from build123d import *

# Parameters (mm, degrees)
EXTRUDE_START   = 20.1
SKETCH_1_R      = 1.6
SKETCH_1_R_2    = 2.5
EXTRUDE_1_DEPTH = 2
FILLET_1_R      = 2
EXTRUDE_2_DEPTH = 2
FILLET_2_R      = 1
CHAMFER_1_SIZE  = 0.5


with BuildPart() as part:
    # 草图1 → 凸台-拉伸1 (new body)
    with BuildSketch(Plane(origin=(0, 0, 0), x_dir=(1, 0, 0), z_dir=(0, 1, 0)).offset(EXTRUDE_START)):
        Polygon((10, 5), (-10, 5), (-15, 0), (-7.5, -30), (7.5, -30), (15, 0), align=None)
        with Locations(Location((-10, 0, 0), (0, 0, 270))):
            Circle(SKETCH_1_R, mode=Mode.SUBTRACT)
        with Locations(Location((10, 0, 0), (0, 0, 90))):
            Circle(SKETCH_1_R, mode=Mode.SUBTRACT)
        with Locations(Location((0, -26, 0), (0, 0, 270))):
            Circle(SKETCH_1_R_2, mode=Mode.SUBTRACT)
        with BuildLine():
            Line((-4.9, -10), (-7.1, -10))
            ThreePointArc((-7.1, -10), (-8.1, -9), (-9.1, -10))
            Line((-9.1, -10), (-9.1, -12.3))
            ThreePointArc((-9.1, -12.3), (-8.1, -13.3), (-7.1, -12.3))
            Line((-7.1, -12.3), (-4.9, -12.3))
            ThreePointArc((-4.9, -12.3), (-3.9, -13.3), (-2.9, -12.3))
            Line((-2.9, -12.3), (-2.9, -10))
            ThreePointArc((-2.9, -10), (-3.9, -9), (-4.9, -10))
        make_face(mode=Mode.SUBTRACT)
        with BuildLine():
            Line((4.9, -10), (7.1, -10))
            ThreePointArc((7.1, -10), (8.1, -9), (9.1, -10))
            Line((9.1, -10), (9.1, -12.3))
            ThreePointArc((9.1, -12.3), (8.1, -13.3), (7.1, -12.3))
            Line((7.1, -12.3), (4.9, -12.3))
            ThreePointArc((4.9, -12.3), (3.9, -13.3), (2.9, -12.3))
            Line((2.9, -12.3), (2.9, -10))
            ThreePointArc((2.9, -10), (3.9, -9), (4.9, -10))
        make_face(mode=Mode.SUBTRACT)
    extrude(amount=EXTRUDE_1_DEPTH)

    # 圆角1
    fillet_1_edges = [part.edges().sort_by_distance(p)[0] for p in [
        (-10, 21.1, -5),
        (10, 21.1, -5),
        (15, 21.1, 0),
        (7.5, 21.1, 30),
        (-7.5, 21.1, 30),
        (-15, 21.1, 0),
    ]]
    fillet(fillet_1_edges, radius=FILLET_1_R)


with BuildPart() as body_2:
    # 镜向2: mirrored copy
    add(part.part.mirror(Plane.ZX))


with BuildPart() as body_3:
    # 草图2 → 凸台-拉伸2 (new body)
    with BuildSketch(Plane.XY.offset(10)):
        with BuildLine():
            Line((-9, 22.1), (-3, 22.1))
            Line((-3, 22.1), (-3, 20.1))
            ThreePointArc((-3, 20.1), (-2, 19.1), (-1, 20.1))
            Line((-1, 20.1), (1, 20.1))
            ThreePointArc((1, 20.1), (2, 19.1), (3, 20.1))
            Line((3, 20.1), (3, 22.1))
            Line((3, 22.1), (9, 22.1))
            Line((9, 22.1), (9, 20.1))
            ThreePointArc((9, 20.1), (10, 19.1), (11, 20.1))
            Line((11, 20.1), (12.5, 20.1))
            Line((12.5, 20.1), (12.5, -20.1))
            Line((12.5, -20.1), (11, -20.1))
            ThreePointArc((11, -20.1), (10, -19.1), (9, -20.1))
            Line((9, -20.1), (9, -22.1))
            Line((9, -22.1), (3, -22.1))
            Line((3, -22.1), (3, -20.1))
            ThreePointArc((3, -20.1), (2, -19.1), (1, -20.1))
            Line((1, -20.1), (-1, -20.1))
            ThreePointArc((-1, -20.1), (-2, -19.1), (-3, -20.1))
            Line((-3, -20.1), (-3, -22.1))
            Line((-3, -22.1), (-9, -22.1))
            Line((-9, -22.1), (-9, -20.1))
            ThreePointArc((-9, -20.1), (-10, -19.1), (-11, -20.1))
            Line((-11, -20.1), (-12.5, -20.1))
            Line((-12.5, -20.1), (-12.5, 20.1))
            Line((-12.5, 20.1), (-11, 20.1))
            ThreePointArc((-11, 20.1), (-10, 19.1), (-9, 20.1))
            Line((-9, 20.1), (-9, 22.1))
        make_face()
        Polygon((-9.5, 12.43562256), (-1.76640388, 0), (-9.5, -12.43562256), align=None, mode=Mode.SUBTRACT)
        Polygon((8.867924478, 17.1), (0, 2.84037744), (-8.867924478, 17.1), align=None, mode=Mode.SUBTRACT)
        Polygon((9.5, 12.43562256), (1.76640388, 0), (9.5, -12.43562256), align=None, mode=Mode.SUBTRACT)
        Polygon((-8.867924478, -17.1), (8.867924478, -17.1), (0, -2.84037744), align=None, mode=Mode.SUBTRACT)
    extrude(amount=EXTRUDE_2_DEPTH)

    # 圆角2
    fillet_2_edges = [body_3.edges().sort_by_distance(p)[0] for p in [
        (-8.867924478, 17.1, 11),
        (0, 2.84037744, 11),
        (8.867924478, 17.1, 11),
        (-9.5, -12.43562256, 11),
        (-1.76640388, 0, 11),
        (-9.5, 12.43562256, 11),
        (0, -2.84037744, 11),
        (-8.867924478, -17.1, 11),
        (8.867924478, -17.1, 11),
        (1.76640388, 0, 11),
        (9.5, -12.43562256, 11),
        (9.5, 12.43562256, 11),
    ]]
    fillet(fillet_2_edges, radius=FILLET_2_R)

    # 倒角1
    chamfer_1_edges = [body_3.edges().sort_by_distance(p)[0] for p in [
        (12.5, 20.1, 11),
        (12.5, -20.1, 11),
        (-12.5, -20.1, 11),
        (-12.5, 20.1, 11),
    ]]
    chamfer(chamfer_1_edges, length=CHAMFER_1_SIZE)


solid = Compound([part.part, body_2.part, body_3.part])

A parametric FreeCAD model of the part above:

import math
import FreeCAD as App
import Part
import Sketcher

V = App.Vector


def edges_at(feature, points):
    """Names of the edges that pass closest to the given points."""
    edges = feature.Shape.Edges
    near = lambda p: min(range(len(edges)), key=lambda i: edges[i].distToShape(Part.Vertex(*p))[0])
    return sorted({f"Edge{near(p) + 1}" for p in points})

doc = App.newDocument("Part")
body = doc.addObject("PartDesign::Body", "Body")

sketch1 = doc.addObject("Sketcher::SketchObject", "Sketch")
body.addObject(sketch1)
sketch1.AttachmentSupport = (doc.XZ_Plane, [""])
sketch1.MapMode = "FlatFace"
sketch1.AttachmentOffset = App.Placement(V(0, 0, -20.1), App.Rotation())
sketch1.addGeometry([
    Part.LineSegment(V(10, -5, 0), V(-10, -5, 0)),
    Part.LineSegment(V(-10, -5, 0), V(-15, 0, 0)),
    Part.LineSegment(V(-15, 0, 0), V(-7.5, 30, 0)),
    Part.LineSegment(V(-7.5, 30, 0), V(7.5, 30, 0)),
    Part.LineSegment(V(7.5, 30, 0), V(15, 0, 0)),
    Part.LineSegment(V(15, 0, 0), V(10, -5, 0)),
    Part.Circle(V(0, 26, 0), V(0, 0, 1), 2.5),
    Part.LineSegment(V(-7.1, 10, 0), V(-4.9, 10, 0)),
    Part.ArcOfCircle(Part.Circle(V(-3.9, 10, 0), V(0, 0, 1), 1), math.radians(180), math.radians(360)),
    Part.LineSegment(V(-2.9, 10, 0), V(-2.9, 12.3, 0)),
    Part.ArcOfCircle(Part.Circle(V(-3.9, 12.3, 0), V(0, 0, 1), 1), math.radians(0), math.radians(180)),
    Part.LineSegment(V(-4.9, 12.3, 0), V(-7.1, 12.3, 0)),
    Part.ArcOfCircle(Part.Circle(V(-8.1, 12.3, 0), V(0, 0, 1), 1), math.radians(0), math.radians(180)),
    Part.LineSegment(V(-9.1, 12.3, 0), V(-9.1, 10, 0)),
    Part.ArcOfCircle(Part.Circle(V(-8.1, 10, 0), V(0, 0, 1), 1), math.radians(180), math.radians(360)),
    Part.Circle(V(-10, 0, 0), V(0, 0, 1), 1.6),
    Part.ArcOfCircle(Part.Circle(V(3.9, 10, 0), V(0, 0, 1), 1), math.radians(180), math.radians(360)),
    Part.LineSegment(V(4.9, 10, 0), V(7.1, 10, 0)),
    Part.ArcOfCircle(Part.Circle(V(8.1, 10, 0), V(0, 0, 1), 1), math.radians(180), math.radians(360)),
    Part.LineSegment(V(9.1, 10, 0), V(9.1, 12.3, 0)),
    Part.ArcOfCircle(Part.Circle(V(8.1, 12.3, 0), V(0, 0, 1), 1), math.radians(0), math.radians(180)),
    Part.LineSegment(V(7.1, 12.3, 0), V(4.9, 12.3, 0)),
    Part.ArcOfCircle(Part.Circle(V(3.9, 12.3, 0), V(0, 0, 1), 1), math.radians(0), math.radians(180)),
    Part.LineSegment(V(2.9, 12.3, 0), V(2.9, 10, 0)),
    Part.Circle(V(10, 0, 0), V(0, 0, 1), 1.6),
], False)
sketch1.addConstraint([
    Sketcher.Constraint("Coincident", 0, 2, 1, 1),
    Sketcher.Constraint("Coincident", 1, 2, 2, 1),
    Sketcher.Constraint("Coincident", 2, 2, 3, 1),
    Sketcher.Constraint("Coincident", 3, 2, 4, 1),
    Sketcher.Constraint("Coincident", 4, 2, 5, 1),
    Sketcher.Constraint("Coincident", 5, 2, 0, 1),
    Sketcher.Constraint("Coincident", 7, 2, 8, 1),
    Sketcher.Constraint("Tangent", 8, 2, 9, 1),
    Sketcher.Constraint("Tangent", 9, 2, 10, 1),
    Sketcher.Constraint("Coincident", 10, 2, 11, 1),
    Sketcher.Constraint("Coincident", 11, 2, 12, 1),
    Sketcher.Constraint("Tangent", 12, 2, 13, 1),
    Sketcher.Constraint("Tangent", 13, 2, 14, 1),
    Sketcher.Constraint("Coincident", 14, 2, 7, 1),
    Sketcher.Constraint("Coincident", 16, 2, 17, 1),
    Sketcher.Constraint("Coincident", 17, 2, 18, 1),
    Sketcher.Constraint("Tangent", 18, 2, 19, 1),
    Sketcher.Constraint("Tangent", 19, 2, 20, 1),
    Sketcher.Constraint("Coincident", 20, 2, 21, 1),
    Sketcher.Constraint("Coincident", 21, 2, 22, 1),
    Sketcher.Constraint("Tangent", 22, 2, 23, 1),
    Sketcher.Constraint("Tangent", 23, 2, 16, 1),
    Sketcher.Constraint("Horizontal", 0),
    Sketcher.Constraint("Horizontal", 3),
    Sketcher.Constraint("Horizontal", 7),
    Sketcher.Constraint("Vertical", 9),
    Sketcher.Constraint("Horizontal", 11),
    Sketcher.Constraint("Vertical", 13),
    Sketcher.Constraint("Horizontal", 17),
    Sketcher.Constraint("Vertical", 19),
    Sketcher.Constraint("Horizontal", 21),
    Sketcher.Constraint("Vertical", 23),
    Sketcher.Constraint("Equal", 8, 10),
    Sketcher.Constraint("Equal", 10, 12),
    Sketcher.Constraint("Equal", 12, 14),
    Sketcher.Constraint("Equal", 14, 16),
    Sketcher.Constraint("Equal", 16, 18),
    Sketcher.Constraint("Equal", 18, 20),
    Sketcher.Constraint("Equal", 20, 22),
    Sketcher.Constraint("Equal", 15, 24),
    Sketcher.Constraint("Symmetric", 15, 3, 24, 3, -1, 1),
    Sketcher.Constraint("Symmetric", 1, 2, 4, 2, -1, 1),
    Sketcher.Constraint("Symmetric", 8, 3, 16, 3, -2),
    Sketcher.Constraint("Symmetric", 14, 3, 18, 3, -2),
    Sketcher.Constraint("PointOnObject", 6, 3, -2),
    Sketcher.Constraint("PointOnObject", 15, 3, -1),
    Sketcher.Constraint("PointOnObject", 1, 2, -1),
    Sketcher.Constraint("Perpendicular", 1, 5),
    Sketcher.Constraint("Horizontal", 10, 3, 12, 3),
    Sketcher.Constraint("Horizontal", 8, 3, 14, 3),
    Sketcher.Constraint("Horizontal", 12, 3, 20, 3),
    Sketcher.Constraint("Horizontal", 20, 3, 22, 3),
    Sketcher.Constraint("Horizontal", 18, 3, 7, 2),
    Sketcher.Constraint("Horizontal", 9, 2, 10, 2),
    Sketcher.Constraint("Horizontal", 14, 2, 16, 2),
    Sketcher.Constraint("Horizontal", 19, 2, 20, 2),
    Sketcher.Constraint("Vertical", 15, 3, 0, 2),
    Sketcher.Constraint("Vertical", 24, 3, 5, 2),
    Sketcher.Constraint("Equal", 2, 4),
    Sketcher.Constraint("Diameter", 6, 5.0),
    Sketcher.Constraint("Radius", 8, 1.0),
    Sketcher.Constraint("Diameter", 15, 3.2),
    Sketcher.Constraint("DistanceX", 0, 2, 0, 1, 20.0),
    Sketcher.Constraint("DistanceX", 3, 1, 3, 2, 15.0),
    Sketcher.Constraint("DistanceX", 7, 1, 7, 2, 2.2),
    Sketcher.Constraint("DistanceY", 9, 1, 9, 2, 2.3),
    Sketcher.Constraint("DistanceY", -1, 1, 6, 3, 26.0),
    Sketcher.Constraint("DistanceY", -1, 1, 8, 3, 10.0),
    Sketcher.Constraint("DistanceY", 0, 2, -1, 1, 5.0),
    Sketcher.Constraint("DistanceY", -1, 1, 2, 2, 30.0),
    Sketcher.Constraint("DistanceX", 14, 3, 16, 3, 12.0),
])
pad1 = doc.addObject("PartDesign::Pad", "Pad")
body.addObject(pad1)
pad1.Profile = sketch1
pad1.Length = 2
pad1.Reversed = True
doc.recompute()

fillet = doc.addObject("PartDesign::Fillet", "Fillet")
body.addObject(fillet)
fillet.Base = (pad1, edges_at(pad1, [
    (-10, 21.1, -5),
    (10, 21.1, -5),
    (15, 21.1, 0),
    (7.5, 21.1, 30),
    (-7.5, 21.1, 30),
    (-15, 21.1, 0),
]))
fillet.Radius = 2
body2 = doc.addObject("PartDesign::Body", "Body001")
doc.recompute()

mirroring = doc.addObject("Part::Mirroring", "Mirroring")
mirroring.Source = body
mirroring.Base = V(0, 0, 0)
mirroring.Normal = V(0, 1, 0)
body2.BaseFeature = mirroring
doc.recompute()
body3 = doc.addObject("PartDesign::Body", "Body002")

sketch2 = doc.addObject("Sketcher::SketchObject", "Sketch001")
body3.addObject(sketch2)
sketch2.AttachmentSupport = (doc.getObject("XY_Plane002"), [""])
sketch2.MapMode = "FlatFace"
sketch2.AttachmentOffset = App.Placement(V(0, 0, 10), App.Rotation())
sketch2.addGeometry([
    Part.LineSegment(V(-3, 22.1, 0), V(-9, 22.1, 0)),
    Part.LineSegment(V(-9, 22.1, 0), V(-9, 20.1, 0)),
    Part.ArcOfCircle(Part.Circle(V(-10, 20.1, 0), V(0, 0, 1), 1), math.radians(180), math.radians(360)),
    Part.LineSegment(V(-11, 20.1, 0), V(-12.5, 20.1, 0)),
    Part.LineSegment(V(-12.5, 20.1, 0), V(-12.5, -20.1, 0)),
    Part.LineSegment(V(-12.5, -20.1, 0), V(-11, -20.1, 0)),
    Part.ArcOfCircle(Part.Circle(V(-10, -20.1, 0), V(0, 0, 1), 1), math.radians(0), math.radians(180)),
    Part.LineSegment(V(-9, -20.1, 0), V(-9, -22.1, 0)),
    Part.LineSegment(V(-9, -22.1, 0), V(-3, -22.1, 0)),
    Part.LineSegment(V(-3, -22.1, 0), V(-3, -20.1, 0)),
    Part.ArcOfCircle(Part.Circle(V(-2, -20.1, 0), V(0, 0, 1), 1), math.radians(0), math.radians(180)),
    Part.LineSegment(V(-1, -20.1, 0), V(1, -20.1, 0)),
    Part.ArcOfCircle(Part.Circle(V(2, -20.1, 0), V(0, 0, 1), 1), math.radians(0), math.radians(180)),
    Part.LineSegment(V(3, -20.1, 0), V(3, -22.1, 0)),
    Part.LineSegment(V(3, -22.1, 0), V(9, -22.1, 0)),
    Part.LineSegment(V(9, -22.1, 0), V(9, -20.1, 0)),
    Part.ArcOfCircle(Part.Circle(V(10, -20.1, 0), V(0, 0, 1), 1), math.radians(0), math.radians(180)),
    Part.LineSegment(V(11, -20.1, 0), V(12.5, -20.1, 0)),
    Part.LineSegment(V(12.5, -20.1, 0), V(12.5, 20.1, 0)),
    Part.LineSegment(V(12.5, 20.1, 0), V(11, 20.1, 0)),
    Part.ArcOfCircle(Part.Circle(V(10, 20.1, 0), V(0, 0, 1), 1), math.radians(180), math.radians(360)),
    Part.LineSegment(V(9, 20.1, 0), V(9, 22.1, 0)),
    Part.LineSegment(V(9, 22.1, 0), V(3, 22.1, 0)),
    Part.LineSegment(V(3, 22.1, 0), V(3, 20.1, 0)),
    Part.ArcOfCircle(Part.Circle(V(2, 20.1, 0), V(0, 0, 1), 1), math.radians(180), math.radians(360)),
    Part.LineSegment(V(1, 20.1, 0), V(-1, 20.1, 0)),
    Part.ArcOfCircle(Part.Circle(V(-2, 20.1, 0), V(0, 0, 1), 1), math.radians(180), math.radians(360)),
    Part.LineSegment(V(-3, 20.1, 0), V(-3, 22.1, 0)),
    Part.LineSegment(V(-8.9, -17.1, 0), V(0, -2.8, 0)),
    Part.LineSegment(V(0, -2.8, 0), V(8.9, -17.1, 0)),
    Part.LineSegment(V(8.9, -17.1, 0), V(-8.9, -17.1, 0)),
    Part.LineSegment(V(9.5, 12.4, 0), V(9.5, -12.4, 0)),
    Part.LineSegment(V(9.5, -12.4, 0), V(1.8, 0, 0)),
    Part.LineSegment(V(1.8, 0, 0), V(9.5, 12.4, 0)),
    Part.LineSegment(V(-9.5, 12.4, 0), V(-1.8, 0, 0)),
    Part.LineSegment(V(-1.8, 0, 0), V(-9.5, -12.4, 0)),
    Part.LineSegment(V(-9.5, -12.4, 0), V(-9.5, 12.4, 0)),
    Part.LineSegment(V(8.9, 17.1, 0), V(0, 2.8, 0)),
    Part.LineSegment(V(0, 2.8, 0), V(-8.9, 17.1, 0)),
    Part.LineSegment(V(-8.9, 17.1, 0), V(8.9, 17.1, 0)),
], False)
sketch2.addConstraint([
    Sketcher.Constraint("Coincident", 0, 2, 1, 1),
    Sketcher.Constraint("Tangent", 1, 2, 2, 2),
    Sketcher.Constraint("Coincident", 2, 1, 3, 1),
    Sketcher.Constraint("Coincident", 3, 2, 4, 1),
    Sketcher.Constraint("Coincident", 4, 2, 5, 1),
    Sketcher.Constraint("Coincident", 5, 2, 6, 2),
    Sketcher.Constraint("Tangent", 6, 1, 7, 1),
    Sketcher.Constraint("Coincident", 7, 2, 8, 1),
    Sketcher.Constraint("Coincident", 8, 2, 9, 1),
    Sketcher.Constraint("Tangent", 9, 2, 10, 2),
    Sketcher.Constraint("Coincident", 10, 1, 11, 1),
    Sketcher.Constraint("Coincident", 11, 2, 12, 2),
    Sketcher.Constraint("Tangent", 12, 1, 13, 1),
    Sketcher.Constraint("Coincident", 13, 2, 14, 1),
    Sketcher.Constraint("Coincident", 14, 2, 15, 1),
    Sketcher.Constraint("Tangent", 15, 2, 16, 2),
    Sketcher.Constraint("Coincident", 16, 1, 17, 1),
    Sketcher.Constraint("Coincident", 17, 2, 18, 1),
    Sketcher.Constraint("Coincident", 18, 2, 19, 1),
    Sketcher.Constraint("Coincident", 19, 2, 20, 2),
    Sketcher.Constraint("Tangent", 20, 1, 21, 1),
    Sketcher.Constraint("Coincident", 21, 2, 22, 1),
    Sketcher.Constraint("Coincident", 22, 2, 23, 1),
    Sketcher.Constraint("Tangent", 23, 2, 24, 2),
    Sketcher.Constraint("Coincident", 24, 1, 25, 1),
    Sketcher.Constraint("Coincident", 25, 2, 26, 2),
    Sketcher.Constraint("Tangent", 26, 1, 27, 1),
    Sketcher.Constraint("Coincident", 27, 2, 0, 1),
    Sketcher.Constraint("Coincident", 28, 2, 29, 1),
    Sketcher.Constraint("Coincident", 29, 2, 30, 1),
    Sketcher.Constraint("Coincident", 30, 2, 28, 1),
    Sketcher.Constraint("Coincident", 31, 2, 32, 1),
    Sketcher.Constraint("Coincident", 32, 2, 33, 1),
    Sketcher.Constraint("Coincident", 33, 2, 31, 1),
    Sketcher.Constraint("Coincident", 34, 2, 35, 1),
    Sketcher.Constraint("Coincident", 35, 2, 36, 1),
    Sketcher.Constraint("Coincident", 36, 2, 34, 1),
    Sketcher.Constraint("Coincident", 37, 2, 38, 1),
    Sketcher.Constraint("Coincident", 38, 2, 39, 1),
    Sketcher.Constraint("Coincident", 39, 2, 37, 1),
    Sketcher.Constraint("Horizontal", 0),
    Sketcher.Constraint("Vertical", 1),
    Sketcher.Constraint("Horizontal", 3),
    Sketcher.Constraint("Vertical", 4),
    Sketcher.Constraint("Horizontal", 5),
    Sketcher.Constraint("Vertical", 7),
    Sketcher.Constraint("Horizontal", 8),
    Sketcher.Constraint("Vertical", 9),
    Sketcher.Constraint("Horizontal", 11),
    Sketcher.Constraint("Vertical", 13),
    Sketcher.Constraint("Horizontal", 14),
    Sketcher.Constraint("Vertical", 15),
    Sketcher.Constraint("Horizontal", 17),
    Sketcher.Constraint("Vertical", 18),
    Sketcher.Constraint("Horizontal", 19),
    Sketcher.Constraint("Vertical", 21),
    Sketcher.Constraint("Horizontal", 22),
    Sketcher.Constraint("Vertical", 23),
    Sketcher.Constraint("Horizontal", 25),
    Sketcher.Constraint("Vertical", 27),
    Sketcher.Constraint("Horizontal", 30),
    Sketcher.Constraint("Vertical", 31),
    Sketcher.Constraint("Vertical", 36),
    Sketcher.Constraint("Horizontal", 39),
    Sketcher.Constraint("Equal", 2, 6),
    Sketcher.Constraint("Equal", 6, 10),
    Sketcher.Constraint("Equal", 10, 12),
    Sketcher.Constraint("Equal", 12, 16),
    Sketcher.Constraint("Equal", 16, 20),
    Sketcher.Constraint("Equal", 20, 24),
    Sketcher.Constraint("Equal", 24, 26),
    Sketcher.Constraint("Symmetric", 2, 3, 16, 3, -1, 1),
    Sketcher.Constraint("Symmetric", 6, 3, 20, 3, -1, 1),
    Sketcher.Constraint("Symmetric", 10, 3, 24, 3, -1, 1),
    Sketcher.Constraint("Symmetric", 12, 3, 26, 3, -1, 1),
    Sketcher.Constraint("Symmetric", 3, 2, 17, 2, -1, 1),
    Sketcher.Constraint("Symmetric", 32, 2, 34, 2, -1, 1),
    Sketcher.Constraint("Symmetric", 33, 2, 35, 2, -1, 1),
    Sketcher.Constraint("Symmetric", 28, 2, 37, 2, -1, 1),
    Sketcher.Constraint("Symmetric", 29, 2, 38, 2, -1, 1),
    Sketcher.Constraint("Symmetric", 10, 3, 12, 3, -2),
    Sketcher.Constraint("Symmetric", 6, 3, 16, 3, -2),
    Sketcher.Constraint("PointOnObject", 28, 2, -2),
    Sketcher.Constraint("PointOnObject", 32, 2, -1),
    Sketcher.Constraint("Parallel", 29, 32),
    Sketcher.Constraint("Parallel", 28, 33),
    Sketcher.Constraint("Parallel", 32, 34),
    Sketcher.Constraint("Parallel", 35, 37),
    Sketcher.Constraint("Horizontal", 6, 3, 10, 3),
    Sketcher.Constraint("Horizontal", 1, 2, 2, 1),
    Sketcher.Constraint("Horizontal", 16, 3, 4, 2),
    Sketcher.Constraint("Horizontal", 9, 2, 10, 1),
    Sketcher.Constraint("Horizontal", 8, 2, 13, 2),
    Sketcher.Constraint("Horizontal", 3, 2, 18, 2),
    Sketcher.Constraint("Horizontal", 0, 2, 21, 2),
    Sketcher.Constraint("Horizontal", 23, 2, 24, 1),
    Sketcher.Constraint("Horizontal", 31, 2, 35, 2),
    Sketcher.Constraint("Equal", 25, 1),
    Sketcher.Constraint("Equal", 1, 7),
    Sketcher.Constraint("Radius", 2, 1.0),
    Sketcher.Constraint("DistanceX", 0, 2, 0, 1, 6.0),
    Sketcher.Constraint("DistanceX", 11, 1, 11, 2, 2.0),
    Sketcher.Constraint("DistanceX", 3, 2, 3, 1, 1.5),
    Sketcher.Constraint("DistanceY", 4, 2, 4, 1, 40.2),
    Sketcher.Constraint("DistanceY", 15, 2, 29, 2, 3.0),
    Sketcher.Constraint("DistanceX", 31, 2, 17, 2, 3.0),
    Sketcher.Constraint("DistanceX", 30, 2, 30, 1, 17.735849),
    Sketcher.Constraint("Distance", 28, 16.792168),
    Sketcher.Constraint("Distance", 32, 14.644221),
])
pad2 = doc.addObject("PartDesign::Pad", "Pad001")
body3.addObject(pad2)
pad2.Profile = sketch2
pad2.Length = 2
doc.recompute()

fillet2 = doc.addObject("PartDesign::Fillet", "Fillet001")
body3.addObject(fillet2)
fillet2.Base = (pad2, edges_at(pad2, [
    (-8.868, 17.1, 11),
    (0, 2.84, 11),
    (8.868, 17.1, 11),
    (-9.5, -12.436, 11),
    (-1.766, 0, 11),
    (-9.5, 12.436, 11),
    (0, -2.84, 11),
    (-8.868, -17.1, 11),
    (8.868, -17.1, 11),
    (1.766, 0, 11),
    (9.5, -12.436, 11),
    (9.5, 12.436, 11),
]))
fillet2.Radius = 1
doc.recompute()

chamfer = doc.addObject("PartDesign::Chamfer", "Chamfer")
body3.addObject(chamfer)
chamfer.Base = (fillet2, edges_at(fillet2, [
    (12.5, 20.1, 11),
    (12.5, -20.1, 11),
    (-12.5, -20.1, 11),
    (-12.5, 20.1, 11),
]))
chamfer.Size = 0.5
mirroring.Visibility = False

doc.recompute()
